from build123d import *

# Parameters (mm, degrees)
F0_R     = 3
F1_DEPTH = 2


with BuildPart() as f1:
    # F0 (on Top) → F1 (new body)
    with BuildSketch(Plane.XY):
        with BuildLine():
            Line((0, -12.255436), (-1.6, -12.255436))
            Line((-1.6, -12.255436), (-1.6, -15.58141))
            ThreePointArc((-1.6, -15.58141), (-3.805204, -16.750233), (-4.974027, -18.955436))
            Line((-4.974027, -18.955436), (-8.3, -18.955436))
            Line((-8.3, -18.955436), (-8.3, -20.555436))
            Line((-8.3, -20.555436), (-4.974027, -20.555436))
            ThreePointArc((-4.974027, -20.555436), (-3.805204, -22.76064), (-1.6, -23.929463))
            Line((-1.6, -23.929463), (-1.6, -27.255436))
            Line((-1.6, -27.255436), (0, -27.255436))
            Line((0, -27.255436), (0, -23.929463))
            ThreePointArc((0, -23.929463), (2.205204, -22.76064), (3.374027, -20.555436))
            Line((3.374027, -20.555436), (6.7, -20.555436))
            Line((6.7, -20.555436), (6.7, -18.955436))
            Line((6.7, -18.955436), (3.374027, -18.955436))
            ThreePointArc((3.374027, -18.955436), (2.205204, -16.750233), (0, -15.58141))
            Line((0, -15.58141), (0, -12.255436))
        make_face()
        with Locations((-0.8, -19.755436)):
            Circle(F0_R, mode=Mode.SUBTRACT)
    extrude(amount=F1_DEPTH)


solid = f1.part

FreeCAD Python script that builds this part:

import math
import FreeCAD as App
import Part
import Sketcher
from FreeCAD import Vector
Q = App.Units.Quantity

doc = App.newDocument("Part")
body = doc.addObject("PartDesign::Body", "Body")

# Sketch on XY plane
sketch1 = body.newObject("Sketcher::SketchObject", "Sketch")
sketch1.AttachmentSupport = (doc.getObject("XY_Plane"), [""])
sketch1.MapMode = "FlatFace"
sketch1.addGeometry([
    Part.LineSegment(Vector(0, -12.3, 0), Vector(-1.6, -12.3, 0)),  # 0
    Part.LineSegment(Vector(-1.6, -12.3, 0), Vector(-1.6, -15.6, 0)),  # 1
    Part.ArcOfCircle(Part.Circle(Vector(-0.8, -19.8, 0), Vector(0, 0, 1), 4.3), math.radians(101), math.radians(169)),  # 2
    Part.LineSegment(Vector(-5, -19, 0), Vector(-8.3, -19, 0)),  # 3
    Part.LineSegment(Vector(-8.3, -19, 0), Vector(-8.3, -20.6, 0)),  # 4
    Part.LineSegment(Vector(-8.3, -20.6, 0), Vector(-5, -20.6, 0)),  # 5
    Part.ArcOfCircle(Part.Circle(Vector(-0.8, -19.8, 0), Vector(0, 0, 1), 4.2), math.radians(-169), math.radians(-101)),  # 6
    Part.LineSegment(Vector(-1.6, -23.9, 0), Vector(-1.6, -27.3, 0)),  # 7
    Part.LineSegment(Vector(-1.6, -27.3, 0), Vector(0, -27.3, 0)),  # 8
    Part.LineSegment(Vector(0, -27.3, 0), Vector(0, -23.9, 0)),  # 9
    Part.ArcOfCircle(Part.Circle(Vector(-0.8, -19.8, 0), Vector(0, 0, 1), 4.2), math.radians(-79), math.radians(-11)),  # 10
    Part.LineSegment(Vector(3.4, -20.6, 0), Vector(6.7, -20.6, 0)),  # 11
    Part.LineSegment(Vector(6.7, -20.6, 0), Vector(6.7, -19, 0)),  # 12
    Part.LineSegment(Vector(6.7, -19, 0), Vector(3.4, -19, 0)),  # 13
    Part.ArcOfCircle(Part.Circle(Vector(-0.8, -19.8, 0), Vector(0, 0, 1), 4.3), math.radians(11), math.radians(79)),  # 14
    Part.LineSegment(Vector(0, -15.6, 0), Vector(0, -12.3, 0)),  # 15
    Part.Circle(Vector(-0.8, -19.8, 0), Vector(0, 0, 1), 3),  # 16
], False)
sketch1.addConstraint([
    Sketcher.Constraint("Coincident", 0, 2, 1, 1),
    Sketcher.Constraint("Coincident", 1, 2, 2, 1),
    Sketcher.Constraint("Coincident", 2, 2, 3, 1),
    Sketcher.Constraint("Coincident", 3, 2, 4, 1),
    Sketcher.Constraint("Coincident", 4, 2, 5, 1),
    Sketcher.Constraint("Coincident", 5, 2, 6, 1),
    Sketcher.Constraint("Coincident", 6, 2, 7, 1),
    Sketcher.Constraint("Coincident", 7, 2, 8, 1),
    Sketcher.Constraint("Coincident", 8, 2, 9, 1),
    Sketcher.Constraint("Coincident", 9, 2, 10, 1),
    Sketcher.Constraint("Coincident", 10, 2, 11, 1),
    Sketcher.Constraint("Coincident", 11, 2, 12, 1),
    Sketcher.Constraint("Coincident", 12, 2, 13, 1),
    Sketcher.Constraint("Coincident", 13, 2, 14, 1),
    Sketcher.Constraint("Coincident", 14, 2, 15, 1),
    Sketcher.Constraint("Coincident", 15, 2, 0, 1),
    Sketcher.Constraint("Horizontal", 0),
    Sketcher.Constraint("Vertical", 1),
    Sketcher.Constraint("Horizontal", 3),
    Sketcher.Constraint("Vertical", 4),
    Sketcher.Constraint("Horizontal", 5),
    Sketcher.Constraint("Vertical", 7),
    Sketcher.Constraint("Horizontal", 8),
    Sketcher.Constraint("Vertical", 9),
    Sketcher.Constraint("Horizontal", 11),
    Sketcher.Constraint("Vertical", 12),
    Sketcher.Constraint("Horizontal", 13),
    Sketcher.Constraint("Vertical", 15),
    Sketcher.Constraint("Coincident", 6, 3, 2, 3),
    Sketcher.Constraint("Coincident", 10, 3, 2, 3),
    Sketcher.Constraint("Coincident", 14, 3, 2, 3),
    Sketcher.Constraint("Coincident", 16, 3, 2, 3),
    Sketcher.Constraint("Equal", 2, 6),
    Sketcher.Constraint("Equal", 6, 10),
    Sketcher.Constraint("Equal", 10, 14),
    Sketcher.Constraint("PointOnObject", 8, 2, -2),
    Sketcher.Constraint("PointOnObject", 14, 2, -2),
    Sketcher.Constraint("Horizontal", 6, 2, 9, 2),
    Sketcher.Constraint("Horizontal", 5, 2, 10, 2),
    Sketcher.Constraint("Horizontal", 3, 2, 12, 2),
    Sketcher.Constraint("Horizontal", 1, 2, 14, 2),
    Sketcher.Constraint("Vertical", 2, 2, 5, 2),
    Sketcher.Constraint("Equal", 5, 11),
    Sketcher.Constraint("Equal", 13, 1),
    Sketcher.Constraint("Equal", 8, 4),
    Sketcher.Constraint("Equal", 1, 7),
    Sketcher.Constraint("Diameter", 16, Q("6 mm")),
    Sketcher.Constraint("Radius", 2, Q("4.25 mm")),
    Sketcher.Constraint("DistanceX", 0, 2, 0, 1, Q("1.6 mm")),
    Sketcher.Constraint("DistanceX", 3, 2, -1, 1, Q("8.3 mm")),
    Sketcher.Constraint("DistanceY", 1, 2, -1, 1, Q("15.58141 mm")),
])
pad1 = body.newObject("PartDesign::Pad", "Pad")
pad1.Profile = sketch1
pad1.Length = 2

doc.recompute()
